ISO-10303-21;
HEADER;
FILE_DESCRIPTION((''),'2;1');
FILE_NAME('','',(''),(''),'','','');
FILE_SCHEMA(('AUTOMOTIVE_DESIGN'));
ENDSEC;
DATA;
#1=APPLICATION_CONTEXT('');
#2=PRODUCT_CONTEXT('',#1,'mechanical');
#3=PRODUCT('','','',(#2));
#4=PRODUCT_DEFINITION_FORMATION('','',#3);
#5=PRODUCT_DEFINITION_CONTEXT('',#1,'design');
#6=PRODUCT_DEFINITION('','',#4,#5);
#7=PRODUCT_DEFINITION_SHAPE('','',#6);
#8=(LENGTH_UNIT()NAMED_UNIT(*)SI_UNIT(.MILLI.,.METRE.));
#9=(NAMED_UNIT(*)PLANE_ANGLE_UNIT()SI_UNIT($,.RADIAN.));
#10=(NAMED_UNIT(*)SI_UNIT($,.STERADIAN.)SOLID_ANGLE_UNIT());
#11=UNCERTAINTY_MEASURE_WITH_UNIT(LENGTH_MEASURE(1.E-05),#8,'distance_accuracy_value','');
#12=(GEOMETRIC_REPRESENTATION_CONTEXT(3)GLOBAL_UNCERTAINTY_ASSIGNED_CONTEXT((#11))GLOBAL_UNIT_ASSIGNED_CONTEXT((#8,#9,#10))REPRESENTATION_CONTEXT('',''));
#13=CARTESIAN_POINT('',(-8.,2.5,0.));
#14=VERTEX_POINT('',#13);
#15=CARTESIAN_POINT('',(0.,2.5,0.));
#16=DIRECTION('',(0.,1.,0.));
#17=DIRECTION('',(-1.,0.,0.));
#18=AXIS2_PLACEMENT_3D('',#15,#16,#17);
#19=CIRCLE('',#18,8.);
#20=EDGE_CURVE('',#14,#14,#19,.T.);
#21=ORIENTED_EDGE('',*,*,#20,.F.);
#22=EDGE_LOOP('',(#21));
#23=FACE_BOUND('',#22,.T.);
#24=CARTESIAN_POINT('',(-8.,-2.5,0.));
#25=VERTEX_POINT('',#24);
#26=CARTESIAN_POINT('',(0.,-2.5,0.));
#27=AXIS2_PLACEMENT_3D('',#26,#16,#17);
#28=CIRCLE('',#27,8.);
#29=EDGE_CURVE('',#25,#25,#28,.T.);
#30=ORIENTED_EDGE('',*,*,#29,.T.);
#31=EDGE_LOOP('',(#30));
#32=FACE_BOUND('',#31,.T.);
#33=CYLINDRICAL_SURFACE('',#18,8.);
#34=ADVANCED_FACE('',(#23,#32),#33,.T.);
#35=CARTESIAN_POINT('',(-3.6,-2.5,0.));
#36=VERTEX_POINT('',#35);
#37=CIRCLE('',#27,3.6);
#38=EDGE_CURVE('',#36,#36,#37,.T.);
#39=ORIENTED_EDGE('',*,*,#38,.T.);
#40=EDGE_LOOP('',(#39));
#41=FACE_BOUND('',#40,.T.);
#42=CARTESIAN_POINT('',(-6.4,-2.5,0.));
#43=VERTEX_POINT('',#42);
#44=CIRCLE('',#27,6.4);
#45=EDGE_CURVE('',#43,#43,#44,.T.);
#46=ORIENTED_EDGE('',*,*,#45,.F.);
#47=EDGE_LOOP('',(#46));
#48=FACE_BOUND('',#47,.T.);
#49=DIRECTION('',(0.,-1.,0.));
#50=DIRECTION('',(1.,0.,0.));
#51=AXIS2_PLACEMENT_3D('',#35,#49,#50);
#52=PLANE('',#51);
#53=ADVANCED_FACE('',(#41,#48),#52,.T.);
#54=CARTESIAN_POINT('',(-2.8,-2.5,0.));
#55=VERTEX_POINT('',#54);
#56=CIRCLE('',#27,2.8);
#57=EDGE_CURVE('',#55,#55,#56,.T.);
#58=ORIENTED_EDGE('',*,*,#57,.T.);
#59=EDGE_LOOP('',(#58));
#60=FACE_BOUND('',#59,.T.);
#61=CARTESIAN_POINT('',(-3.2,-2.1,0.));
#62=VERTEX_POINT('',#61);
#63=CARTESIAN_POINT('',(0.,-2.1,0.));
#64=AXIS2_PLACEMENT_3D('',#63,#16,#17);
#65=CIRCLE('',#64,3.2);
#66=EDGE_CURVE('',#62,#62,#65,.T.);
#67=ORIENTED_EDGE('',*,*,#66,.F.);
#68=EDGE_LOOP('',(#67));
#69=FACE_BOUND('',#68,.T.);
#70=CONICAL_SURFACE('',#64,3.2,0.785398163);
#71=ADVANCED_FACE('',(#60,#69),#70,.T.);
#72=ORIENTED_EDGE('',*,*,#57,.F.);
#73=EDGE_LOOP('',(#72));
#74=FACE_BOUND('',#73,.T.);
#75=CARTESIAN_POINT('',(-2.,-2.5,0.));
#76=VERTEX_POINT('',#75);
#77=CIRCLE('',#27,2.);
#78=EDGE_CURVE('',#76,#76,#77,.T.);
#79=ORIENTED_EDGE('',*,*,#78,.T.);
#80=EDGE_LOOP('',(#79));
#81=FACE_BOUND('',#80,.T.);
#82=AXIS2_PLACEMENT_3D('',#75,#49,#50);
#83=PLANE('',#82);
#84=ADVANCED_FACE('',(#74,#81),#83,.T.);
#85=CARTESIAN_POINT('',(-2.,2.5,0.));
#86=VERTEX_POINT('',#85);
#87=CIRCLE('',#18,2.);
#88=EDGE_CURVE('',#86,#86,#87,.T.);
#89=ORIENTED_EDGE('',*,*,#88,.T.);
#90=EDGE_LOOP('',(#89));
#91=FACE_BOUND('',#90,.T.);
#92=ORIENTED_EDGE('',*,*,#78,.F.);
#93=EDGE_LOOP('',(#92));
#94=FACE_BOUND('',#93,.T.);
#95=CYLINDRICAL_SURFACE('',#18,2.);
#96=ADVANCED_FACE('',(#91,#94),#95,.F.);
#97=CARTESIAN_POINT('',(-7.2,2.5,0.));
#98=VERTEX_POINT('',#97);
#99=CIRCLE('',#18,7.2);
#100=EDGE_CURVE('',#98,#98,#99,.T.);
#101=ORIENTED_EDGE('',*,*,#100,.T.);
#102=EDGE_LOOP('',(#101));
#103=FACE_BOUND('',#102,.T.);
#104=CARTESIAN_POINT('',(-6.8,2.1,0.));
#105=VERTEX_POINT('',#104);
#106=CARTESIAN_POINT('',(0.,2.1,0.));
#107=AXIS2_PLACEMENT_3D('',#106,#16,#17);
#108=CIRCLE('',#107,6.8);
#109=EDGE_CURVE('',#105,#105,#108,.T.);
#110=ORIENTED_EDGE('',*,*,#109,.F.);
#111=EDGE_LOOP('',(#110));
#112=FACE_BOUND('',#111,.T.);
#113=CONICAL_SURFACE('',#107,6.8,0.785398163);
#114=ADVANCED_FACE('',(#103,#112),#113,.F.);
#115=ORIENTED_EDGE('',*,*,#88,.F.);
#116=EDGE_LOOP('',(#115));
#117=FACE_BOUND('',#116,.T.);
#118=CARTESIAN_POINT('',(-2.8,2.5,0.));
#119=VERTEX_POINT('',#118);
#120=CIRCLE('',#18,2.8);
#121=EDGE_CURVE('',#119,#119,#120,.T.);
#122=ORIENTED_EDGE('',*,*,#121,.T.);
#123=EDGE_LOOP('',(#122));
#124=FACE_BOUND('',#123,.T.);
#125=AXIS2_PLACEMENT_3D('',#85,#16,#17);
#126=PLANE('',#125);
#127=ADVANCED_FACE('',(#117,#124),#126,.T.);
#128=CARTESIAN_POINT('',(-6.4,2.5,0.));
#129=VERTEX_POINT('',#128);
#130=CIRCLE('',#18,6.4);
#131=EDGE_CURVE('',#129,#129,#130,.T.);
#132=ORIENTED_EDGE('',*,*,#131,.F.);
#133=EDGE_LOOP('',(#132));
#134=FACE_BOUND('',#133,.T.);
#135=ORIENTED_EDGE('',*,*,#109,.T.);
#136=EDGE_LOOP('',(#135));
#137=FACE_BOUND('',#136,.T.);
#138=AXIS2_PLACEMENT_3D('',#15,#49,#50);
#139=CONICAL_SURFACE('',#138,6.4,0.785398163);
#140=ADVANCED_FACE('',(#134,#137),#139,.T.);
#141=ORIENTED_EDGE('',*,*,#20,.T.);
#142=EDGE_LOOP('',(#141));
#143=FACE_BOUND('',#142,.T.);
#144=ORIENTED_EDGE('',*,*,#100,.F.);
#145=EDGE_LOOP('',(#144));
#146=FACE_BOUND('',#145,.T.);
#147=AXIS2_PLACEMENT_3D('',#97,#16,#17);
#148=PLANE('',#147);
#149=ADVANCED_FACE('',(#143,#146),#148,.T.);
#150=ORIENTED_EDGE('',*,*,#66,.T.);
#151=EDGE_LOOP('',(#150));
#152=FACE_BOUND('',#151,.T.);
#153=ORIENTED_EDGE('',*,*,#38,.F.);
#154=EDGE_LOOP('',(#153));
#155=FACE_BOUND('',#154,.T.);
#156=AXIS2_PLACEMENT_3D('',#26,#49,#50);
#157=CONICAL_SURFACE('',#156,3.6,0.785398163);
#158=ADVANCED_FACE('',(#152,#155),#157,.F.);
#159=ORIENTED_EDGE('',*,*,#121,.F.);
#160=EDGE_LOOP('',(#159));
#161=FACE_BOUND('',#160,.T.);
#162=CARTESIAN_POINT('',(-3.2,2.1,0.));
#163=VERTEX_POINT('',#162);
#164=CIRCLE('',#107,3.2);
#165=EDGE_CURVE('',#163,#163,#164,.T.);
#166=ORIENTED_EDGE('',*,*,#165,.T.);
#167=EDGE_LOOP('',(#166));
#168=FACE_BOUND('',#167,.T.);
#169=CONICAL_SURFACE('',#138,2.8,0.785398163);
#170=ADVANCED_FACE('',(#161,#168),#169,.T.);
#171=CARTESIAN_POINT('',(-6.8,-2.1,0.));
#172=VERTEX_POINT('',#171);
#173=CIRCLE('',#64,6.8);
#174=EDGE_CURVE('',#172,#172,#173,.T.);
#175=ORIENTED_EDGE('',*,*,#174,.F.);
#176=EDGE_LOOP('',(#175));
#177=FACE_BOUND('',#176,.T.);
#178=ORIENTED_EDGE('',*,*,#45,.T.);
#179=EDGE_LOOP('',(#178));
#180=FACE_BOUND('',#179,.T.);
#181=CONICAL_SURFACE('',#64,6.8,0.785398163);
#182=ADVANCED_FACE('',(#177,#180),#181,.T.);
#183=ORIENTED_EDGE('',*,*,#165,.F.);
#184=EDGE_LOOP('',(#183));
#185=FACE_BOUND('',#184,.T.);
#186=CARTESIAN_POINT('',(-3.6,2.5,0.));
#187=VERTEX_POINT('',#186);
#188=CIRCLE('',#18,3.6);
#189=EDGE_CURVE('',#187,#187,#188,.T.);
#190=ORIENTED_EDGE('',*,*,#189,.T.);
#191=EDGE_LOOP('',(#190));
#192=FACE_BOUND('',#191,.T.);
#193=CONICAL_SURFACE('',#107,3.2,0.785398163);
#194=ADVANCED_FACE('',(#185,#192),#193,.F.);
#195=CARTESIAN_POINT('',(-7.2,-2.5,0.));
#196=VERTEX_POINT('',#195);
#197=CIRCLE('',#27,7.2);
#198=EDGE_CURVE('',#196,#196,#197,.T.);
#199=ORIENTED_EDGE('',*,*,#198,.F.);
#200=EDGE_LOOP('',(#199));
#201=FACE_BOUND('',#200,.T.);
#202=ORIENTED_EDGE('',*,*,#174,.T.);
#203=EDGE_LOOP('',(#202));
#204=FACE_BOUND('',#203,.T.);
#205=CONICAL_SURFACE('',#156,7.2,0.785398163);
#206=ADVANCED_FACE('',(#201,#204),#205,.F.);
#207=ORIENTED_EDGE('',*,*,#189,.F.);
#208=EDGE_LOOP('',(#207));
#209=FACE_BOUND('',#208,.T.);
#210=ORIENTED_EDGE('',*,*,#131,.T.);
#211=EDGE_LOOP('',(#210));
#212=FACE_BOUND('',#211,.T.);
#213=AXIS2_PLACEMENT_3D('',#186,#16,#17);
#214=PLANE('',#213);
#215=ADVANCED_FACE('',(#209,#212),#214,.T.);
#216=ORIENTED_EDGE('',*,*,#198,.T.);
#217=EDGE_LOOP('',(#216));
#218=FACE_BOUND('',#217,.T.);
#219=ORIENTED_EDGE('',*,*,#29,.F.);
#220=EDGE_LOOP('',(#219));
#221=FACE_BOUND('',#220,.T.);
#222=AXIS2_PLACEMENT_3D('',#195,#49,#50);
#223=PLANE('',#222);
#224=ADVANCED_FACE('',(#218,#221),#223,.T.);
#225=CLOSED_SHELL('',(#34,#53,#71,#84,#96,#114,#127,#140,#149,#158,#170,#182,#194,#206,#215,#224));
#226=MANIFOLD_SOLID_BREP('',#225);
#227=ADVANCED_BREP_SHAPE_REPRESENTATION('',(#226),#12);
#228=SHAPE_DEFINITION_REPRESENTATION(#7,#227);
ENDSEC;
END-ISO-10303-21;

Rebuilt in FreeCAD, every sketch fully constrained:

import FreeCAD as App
import Part
import Sketcher
Q = App.Units.Quantity

doc = App.newDocument("Part")
params = doc.addObject("Spreadsheet::Sheet", "Params")
for row, (alias, value) in enumerate([
    ("sketch1_height", "5 mm"),
    ("sketch1_width", "0.8 mm"),
    ("sketch1_width2", "2.8 mm"),
    ("revolution_angle", "360 deg"),
], start=1):
    params.set(f"A{row}", alias)
    params.set(f"B{row}", "=" + value)
    params.setAlias(f"B{row}", alias)

body = doc.addObject("PartDesign::Body", "Body")

sketch1 = body.newObject("Sketcher::SketchObject", "Sketch")
sketch1.AttachmentSupport = (doc.getObject("XY_Plane"), [""])
sketch1.MapMode = "FlatFace"
sketch1.addGeometry(Part.LineSegment(App.Vector(-2, 2.5, 0), App.Vector(-2.8, 2.5, 0)), False)
sketch1.addGeometry(Part.LineSegment(App.Vector(-2.8, 2.5, 0), App.Vector(-3.2, 2.1, 0)), False)
sketch1.addGeometry(Part.LineSegment(App.Vector(-3.2, 2.1, 0), App.Vector(-3.6, 2.5, 0)), False)
sketch1.addGeometry(Part.LineSegment(App.Vector(-3.6, 2.5, 0), App.Vector(-6.4, 2.5, 0)), False)
sketch1.addGeometry(Part.LineSegment(App.Vector(-6.4, 2.5, 0), App.Vector(-6.8, 2.1, 0)), False)
sketch1.addGeometry(Part.LineSegment(App.Vector(-6.8, 2.1, 0), App.Vector(-7.2, 2.5, 0)), False)
sketch1.addGeometry(Part.LineSegment(App.Vector(-7.2, 2.5, 0), App.Vector(-8, 2.5, 0)), False)
sketch1.addGeometry(Part.LineSegment(App.Vector(-8, 2.5, 0), App.Vector(-8, -2.5, 0)), False)
sketch1.addGeometry(Part.LineSegment(App.Vector(-8, -2.5, 0), App.Vector(-7.2, -2.5, 0)), False)
sketch1.addGeometry(Part.LineSegment(App.Vector(-7.2, -2.5, 0), App.Vector(-6.8, -2.1, 0)), False)
sketch1.addGeometry(Part.LineSegment(App.Vector(-6.8, -2.1, 0), App.Vector(-6.4, -2.5, 0)), False)
sketch1.addGeometry(Part.LineSegment(App.Vector(-6.4, -2.5, 0), App.Vector(-3.6, -2.5, 0)), False)
sketch1.addGeometry(Part.LineSegment(App.Vector(-3.6, -2.5, 0), App.Vector(-3.2, -2.1, 0)), False)
sketch1.addGeometry(Part.LineSegment(App.Vector(-3.2, -2.1, 0), App.Vector(-2.8, -2.5, 0)), False)
sketch1.addGeometry(Part.LineSegment(App.Vector(-2.8, -2.5, 0), App.Vector(-2, -2.5, 0)), False)
sketch1.addGeometry(Part.LineSegment(App.Vector(-2, -2.5, 0), App.Vector(-2, 2.5, 0)), False)
sketch1.addConstraint(Sketcher.Constraint("Coincident", 0, 2, 1, 1))
sketch1.addConstraint(Sketcher.Constraint("Coincident", 1, 2, 2, 1))
sketch1.addConstraint(Sketcher.Constraint("Coincident", 2, 2, 3, 1))
sketch1.addConstraint(Sketcher.Constraint("Coincident", 3, 2, 4, 1))
sketch1.addConstraint(Sketcher.Constraint("Coincident", 4, 2, 5, 1))
sketch1.addConstraint(Sketcher.Constraint("Coincident", 5, 2, 6, 1))
sketch1.addConstraint(Sketcher.Constraint("Coincident", 6, 2, 7, 1))
sketch1.addConstraint(Sketcher.Constraint("Coincident", 7, 2, 8, 1))
sketch1.addConstraint(Sketcher.Constraint("Coincident", 8, 2, 9, 1))
sketch1.addConstraint(Sketcher.Constraint("Coincident", 9, 2, 10, 1))
sketch1.addConstraint(Sketcher.Constraint("Coincident", 10, 2, 11, 1))
sketch1.addConstraint(Sketcher.Constraint("Coincident", 11, 2, 12, 1))
sketch1.addConstraint(Sketcher.Constraint("Coincident", 12, 2, 13, 1))
sketch1.addConstraint(Sketcher.Constraint("Coincident", 13, 2, 14, 1))
sketch1.addConstraint(Sketcher.Constraint("Coincident", 14, 2, 15, 1))
sketch1.addConstraint(Sketcher.Constraint("Coincident", 15, 2, 0, 1))
sketch1.addConstraint(Sketcher.Constraint("Horizontal", 0))
sketch1.addConstraint(Sketcher.Constraint("Horizontal", 3))
sketch1.addConstraint(Sketcher.Constraint("Horizontal", 6))
sketch1.addConstraint(Sketcher.Constraint("Vertical", 7))
sketch1.addConstraint(Sketcher.Constraint("Horizontal", 8))
sketch1.addConstraint(Sketcher.Constraint("Horizontal", 11))
sketch1.addConstraint(Sketcher.Constraint("Horizontal", 14))
sketch1.addConstraint(Sketcher.Constraint("Vertical", 15))
sketch1.addConstraint(Sketcher.Constraint("Symmetric", 5, 2, 8, 2, -1))
sketch1.addConstraint(Sketcher.Constraint("Symmetric", 4, 2, 9, 2, -1))
sketch1.addConstraint(Sketcher.Constraint("Symmetric", 3, 2, 10, 2, -1))
sketch1.addConstraint(Sketcher.Constraint("Symmetric", 1, 2, 12, 2, -1))
sketch1.addConstraint(Sketcher.Constraint("Symmetric", 0, 2, 13, 2, -1))
sketch1.addConstraint(Sketcher.Constraint("Perpendicular", 1, 2))
sketch1.addConstraint(Sketcher.Constraint("Perpendicular", 2, 4))
sketch1.addConstraint(Sketcher.Constraint("Perpendicular", 4, 5))
sketch1.addConstraint(Sketcher.Constraint("Perpendicular", 5, 9))
sketch1.addConstraint(Sketcher.Constraint("Perpendicular", 10, 12))
sketch1.addConstraint(Sketcher.Constraint("Horizontal", 0, 2, 2, 2))
sketch1.addConstraint(Sketcher.Constraint("Horizontal", 1, 2, 4, 2))
sketch1.addConstraint(Sketcher.Constraint("Horizontal", 3, 2, 5, 2))
sketch1.addConstraint(Sketcher.Constraint("Equal", 0, 6))
sketch1.addConstraint(Sketcher.Constraint("DistanceY", 7, 2, 7, 1, Q("5 mm")))
sketch1.addConstraint(Sketcher.Constraint("DistanceX", 0, 2, 0, 1, Q("0.8 mm")))
sketch1.addConstraint(Sketcher.Constraint("DistanceX", 3, 2, 3, 1, Q("2.8 mm")))
sketch1.addConstraint(Sketcher.Constraint("DistanceX", 6, 2, -1, 1, Q("8 mm")))
sketch1.addConstraint(Sketcher.Constraint("DistanceX", 14, 2, -1, 1, Q("2 mm")))
sketch1.setExpression("Constraints[38]", "Params.sketch1_height")
sketch1.setExpression("Constraints[39]", "Params.sketch1_width")
sketch1.setExpression("Constraints[40]", "Params.sketch1_width2")
revolution = body.newObject("PartDesign::Revolution", "Revolution")
revolution.Profile = sketch1
revolution.ReferenceAxis = (sketch1, ["V_Axis"])
revolution.setExpression("Angle", "Params.revolution_angle")

doc.recompute()
